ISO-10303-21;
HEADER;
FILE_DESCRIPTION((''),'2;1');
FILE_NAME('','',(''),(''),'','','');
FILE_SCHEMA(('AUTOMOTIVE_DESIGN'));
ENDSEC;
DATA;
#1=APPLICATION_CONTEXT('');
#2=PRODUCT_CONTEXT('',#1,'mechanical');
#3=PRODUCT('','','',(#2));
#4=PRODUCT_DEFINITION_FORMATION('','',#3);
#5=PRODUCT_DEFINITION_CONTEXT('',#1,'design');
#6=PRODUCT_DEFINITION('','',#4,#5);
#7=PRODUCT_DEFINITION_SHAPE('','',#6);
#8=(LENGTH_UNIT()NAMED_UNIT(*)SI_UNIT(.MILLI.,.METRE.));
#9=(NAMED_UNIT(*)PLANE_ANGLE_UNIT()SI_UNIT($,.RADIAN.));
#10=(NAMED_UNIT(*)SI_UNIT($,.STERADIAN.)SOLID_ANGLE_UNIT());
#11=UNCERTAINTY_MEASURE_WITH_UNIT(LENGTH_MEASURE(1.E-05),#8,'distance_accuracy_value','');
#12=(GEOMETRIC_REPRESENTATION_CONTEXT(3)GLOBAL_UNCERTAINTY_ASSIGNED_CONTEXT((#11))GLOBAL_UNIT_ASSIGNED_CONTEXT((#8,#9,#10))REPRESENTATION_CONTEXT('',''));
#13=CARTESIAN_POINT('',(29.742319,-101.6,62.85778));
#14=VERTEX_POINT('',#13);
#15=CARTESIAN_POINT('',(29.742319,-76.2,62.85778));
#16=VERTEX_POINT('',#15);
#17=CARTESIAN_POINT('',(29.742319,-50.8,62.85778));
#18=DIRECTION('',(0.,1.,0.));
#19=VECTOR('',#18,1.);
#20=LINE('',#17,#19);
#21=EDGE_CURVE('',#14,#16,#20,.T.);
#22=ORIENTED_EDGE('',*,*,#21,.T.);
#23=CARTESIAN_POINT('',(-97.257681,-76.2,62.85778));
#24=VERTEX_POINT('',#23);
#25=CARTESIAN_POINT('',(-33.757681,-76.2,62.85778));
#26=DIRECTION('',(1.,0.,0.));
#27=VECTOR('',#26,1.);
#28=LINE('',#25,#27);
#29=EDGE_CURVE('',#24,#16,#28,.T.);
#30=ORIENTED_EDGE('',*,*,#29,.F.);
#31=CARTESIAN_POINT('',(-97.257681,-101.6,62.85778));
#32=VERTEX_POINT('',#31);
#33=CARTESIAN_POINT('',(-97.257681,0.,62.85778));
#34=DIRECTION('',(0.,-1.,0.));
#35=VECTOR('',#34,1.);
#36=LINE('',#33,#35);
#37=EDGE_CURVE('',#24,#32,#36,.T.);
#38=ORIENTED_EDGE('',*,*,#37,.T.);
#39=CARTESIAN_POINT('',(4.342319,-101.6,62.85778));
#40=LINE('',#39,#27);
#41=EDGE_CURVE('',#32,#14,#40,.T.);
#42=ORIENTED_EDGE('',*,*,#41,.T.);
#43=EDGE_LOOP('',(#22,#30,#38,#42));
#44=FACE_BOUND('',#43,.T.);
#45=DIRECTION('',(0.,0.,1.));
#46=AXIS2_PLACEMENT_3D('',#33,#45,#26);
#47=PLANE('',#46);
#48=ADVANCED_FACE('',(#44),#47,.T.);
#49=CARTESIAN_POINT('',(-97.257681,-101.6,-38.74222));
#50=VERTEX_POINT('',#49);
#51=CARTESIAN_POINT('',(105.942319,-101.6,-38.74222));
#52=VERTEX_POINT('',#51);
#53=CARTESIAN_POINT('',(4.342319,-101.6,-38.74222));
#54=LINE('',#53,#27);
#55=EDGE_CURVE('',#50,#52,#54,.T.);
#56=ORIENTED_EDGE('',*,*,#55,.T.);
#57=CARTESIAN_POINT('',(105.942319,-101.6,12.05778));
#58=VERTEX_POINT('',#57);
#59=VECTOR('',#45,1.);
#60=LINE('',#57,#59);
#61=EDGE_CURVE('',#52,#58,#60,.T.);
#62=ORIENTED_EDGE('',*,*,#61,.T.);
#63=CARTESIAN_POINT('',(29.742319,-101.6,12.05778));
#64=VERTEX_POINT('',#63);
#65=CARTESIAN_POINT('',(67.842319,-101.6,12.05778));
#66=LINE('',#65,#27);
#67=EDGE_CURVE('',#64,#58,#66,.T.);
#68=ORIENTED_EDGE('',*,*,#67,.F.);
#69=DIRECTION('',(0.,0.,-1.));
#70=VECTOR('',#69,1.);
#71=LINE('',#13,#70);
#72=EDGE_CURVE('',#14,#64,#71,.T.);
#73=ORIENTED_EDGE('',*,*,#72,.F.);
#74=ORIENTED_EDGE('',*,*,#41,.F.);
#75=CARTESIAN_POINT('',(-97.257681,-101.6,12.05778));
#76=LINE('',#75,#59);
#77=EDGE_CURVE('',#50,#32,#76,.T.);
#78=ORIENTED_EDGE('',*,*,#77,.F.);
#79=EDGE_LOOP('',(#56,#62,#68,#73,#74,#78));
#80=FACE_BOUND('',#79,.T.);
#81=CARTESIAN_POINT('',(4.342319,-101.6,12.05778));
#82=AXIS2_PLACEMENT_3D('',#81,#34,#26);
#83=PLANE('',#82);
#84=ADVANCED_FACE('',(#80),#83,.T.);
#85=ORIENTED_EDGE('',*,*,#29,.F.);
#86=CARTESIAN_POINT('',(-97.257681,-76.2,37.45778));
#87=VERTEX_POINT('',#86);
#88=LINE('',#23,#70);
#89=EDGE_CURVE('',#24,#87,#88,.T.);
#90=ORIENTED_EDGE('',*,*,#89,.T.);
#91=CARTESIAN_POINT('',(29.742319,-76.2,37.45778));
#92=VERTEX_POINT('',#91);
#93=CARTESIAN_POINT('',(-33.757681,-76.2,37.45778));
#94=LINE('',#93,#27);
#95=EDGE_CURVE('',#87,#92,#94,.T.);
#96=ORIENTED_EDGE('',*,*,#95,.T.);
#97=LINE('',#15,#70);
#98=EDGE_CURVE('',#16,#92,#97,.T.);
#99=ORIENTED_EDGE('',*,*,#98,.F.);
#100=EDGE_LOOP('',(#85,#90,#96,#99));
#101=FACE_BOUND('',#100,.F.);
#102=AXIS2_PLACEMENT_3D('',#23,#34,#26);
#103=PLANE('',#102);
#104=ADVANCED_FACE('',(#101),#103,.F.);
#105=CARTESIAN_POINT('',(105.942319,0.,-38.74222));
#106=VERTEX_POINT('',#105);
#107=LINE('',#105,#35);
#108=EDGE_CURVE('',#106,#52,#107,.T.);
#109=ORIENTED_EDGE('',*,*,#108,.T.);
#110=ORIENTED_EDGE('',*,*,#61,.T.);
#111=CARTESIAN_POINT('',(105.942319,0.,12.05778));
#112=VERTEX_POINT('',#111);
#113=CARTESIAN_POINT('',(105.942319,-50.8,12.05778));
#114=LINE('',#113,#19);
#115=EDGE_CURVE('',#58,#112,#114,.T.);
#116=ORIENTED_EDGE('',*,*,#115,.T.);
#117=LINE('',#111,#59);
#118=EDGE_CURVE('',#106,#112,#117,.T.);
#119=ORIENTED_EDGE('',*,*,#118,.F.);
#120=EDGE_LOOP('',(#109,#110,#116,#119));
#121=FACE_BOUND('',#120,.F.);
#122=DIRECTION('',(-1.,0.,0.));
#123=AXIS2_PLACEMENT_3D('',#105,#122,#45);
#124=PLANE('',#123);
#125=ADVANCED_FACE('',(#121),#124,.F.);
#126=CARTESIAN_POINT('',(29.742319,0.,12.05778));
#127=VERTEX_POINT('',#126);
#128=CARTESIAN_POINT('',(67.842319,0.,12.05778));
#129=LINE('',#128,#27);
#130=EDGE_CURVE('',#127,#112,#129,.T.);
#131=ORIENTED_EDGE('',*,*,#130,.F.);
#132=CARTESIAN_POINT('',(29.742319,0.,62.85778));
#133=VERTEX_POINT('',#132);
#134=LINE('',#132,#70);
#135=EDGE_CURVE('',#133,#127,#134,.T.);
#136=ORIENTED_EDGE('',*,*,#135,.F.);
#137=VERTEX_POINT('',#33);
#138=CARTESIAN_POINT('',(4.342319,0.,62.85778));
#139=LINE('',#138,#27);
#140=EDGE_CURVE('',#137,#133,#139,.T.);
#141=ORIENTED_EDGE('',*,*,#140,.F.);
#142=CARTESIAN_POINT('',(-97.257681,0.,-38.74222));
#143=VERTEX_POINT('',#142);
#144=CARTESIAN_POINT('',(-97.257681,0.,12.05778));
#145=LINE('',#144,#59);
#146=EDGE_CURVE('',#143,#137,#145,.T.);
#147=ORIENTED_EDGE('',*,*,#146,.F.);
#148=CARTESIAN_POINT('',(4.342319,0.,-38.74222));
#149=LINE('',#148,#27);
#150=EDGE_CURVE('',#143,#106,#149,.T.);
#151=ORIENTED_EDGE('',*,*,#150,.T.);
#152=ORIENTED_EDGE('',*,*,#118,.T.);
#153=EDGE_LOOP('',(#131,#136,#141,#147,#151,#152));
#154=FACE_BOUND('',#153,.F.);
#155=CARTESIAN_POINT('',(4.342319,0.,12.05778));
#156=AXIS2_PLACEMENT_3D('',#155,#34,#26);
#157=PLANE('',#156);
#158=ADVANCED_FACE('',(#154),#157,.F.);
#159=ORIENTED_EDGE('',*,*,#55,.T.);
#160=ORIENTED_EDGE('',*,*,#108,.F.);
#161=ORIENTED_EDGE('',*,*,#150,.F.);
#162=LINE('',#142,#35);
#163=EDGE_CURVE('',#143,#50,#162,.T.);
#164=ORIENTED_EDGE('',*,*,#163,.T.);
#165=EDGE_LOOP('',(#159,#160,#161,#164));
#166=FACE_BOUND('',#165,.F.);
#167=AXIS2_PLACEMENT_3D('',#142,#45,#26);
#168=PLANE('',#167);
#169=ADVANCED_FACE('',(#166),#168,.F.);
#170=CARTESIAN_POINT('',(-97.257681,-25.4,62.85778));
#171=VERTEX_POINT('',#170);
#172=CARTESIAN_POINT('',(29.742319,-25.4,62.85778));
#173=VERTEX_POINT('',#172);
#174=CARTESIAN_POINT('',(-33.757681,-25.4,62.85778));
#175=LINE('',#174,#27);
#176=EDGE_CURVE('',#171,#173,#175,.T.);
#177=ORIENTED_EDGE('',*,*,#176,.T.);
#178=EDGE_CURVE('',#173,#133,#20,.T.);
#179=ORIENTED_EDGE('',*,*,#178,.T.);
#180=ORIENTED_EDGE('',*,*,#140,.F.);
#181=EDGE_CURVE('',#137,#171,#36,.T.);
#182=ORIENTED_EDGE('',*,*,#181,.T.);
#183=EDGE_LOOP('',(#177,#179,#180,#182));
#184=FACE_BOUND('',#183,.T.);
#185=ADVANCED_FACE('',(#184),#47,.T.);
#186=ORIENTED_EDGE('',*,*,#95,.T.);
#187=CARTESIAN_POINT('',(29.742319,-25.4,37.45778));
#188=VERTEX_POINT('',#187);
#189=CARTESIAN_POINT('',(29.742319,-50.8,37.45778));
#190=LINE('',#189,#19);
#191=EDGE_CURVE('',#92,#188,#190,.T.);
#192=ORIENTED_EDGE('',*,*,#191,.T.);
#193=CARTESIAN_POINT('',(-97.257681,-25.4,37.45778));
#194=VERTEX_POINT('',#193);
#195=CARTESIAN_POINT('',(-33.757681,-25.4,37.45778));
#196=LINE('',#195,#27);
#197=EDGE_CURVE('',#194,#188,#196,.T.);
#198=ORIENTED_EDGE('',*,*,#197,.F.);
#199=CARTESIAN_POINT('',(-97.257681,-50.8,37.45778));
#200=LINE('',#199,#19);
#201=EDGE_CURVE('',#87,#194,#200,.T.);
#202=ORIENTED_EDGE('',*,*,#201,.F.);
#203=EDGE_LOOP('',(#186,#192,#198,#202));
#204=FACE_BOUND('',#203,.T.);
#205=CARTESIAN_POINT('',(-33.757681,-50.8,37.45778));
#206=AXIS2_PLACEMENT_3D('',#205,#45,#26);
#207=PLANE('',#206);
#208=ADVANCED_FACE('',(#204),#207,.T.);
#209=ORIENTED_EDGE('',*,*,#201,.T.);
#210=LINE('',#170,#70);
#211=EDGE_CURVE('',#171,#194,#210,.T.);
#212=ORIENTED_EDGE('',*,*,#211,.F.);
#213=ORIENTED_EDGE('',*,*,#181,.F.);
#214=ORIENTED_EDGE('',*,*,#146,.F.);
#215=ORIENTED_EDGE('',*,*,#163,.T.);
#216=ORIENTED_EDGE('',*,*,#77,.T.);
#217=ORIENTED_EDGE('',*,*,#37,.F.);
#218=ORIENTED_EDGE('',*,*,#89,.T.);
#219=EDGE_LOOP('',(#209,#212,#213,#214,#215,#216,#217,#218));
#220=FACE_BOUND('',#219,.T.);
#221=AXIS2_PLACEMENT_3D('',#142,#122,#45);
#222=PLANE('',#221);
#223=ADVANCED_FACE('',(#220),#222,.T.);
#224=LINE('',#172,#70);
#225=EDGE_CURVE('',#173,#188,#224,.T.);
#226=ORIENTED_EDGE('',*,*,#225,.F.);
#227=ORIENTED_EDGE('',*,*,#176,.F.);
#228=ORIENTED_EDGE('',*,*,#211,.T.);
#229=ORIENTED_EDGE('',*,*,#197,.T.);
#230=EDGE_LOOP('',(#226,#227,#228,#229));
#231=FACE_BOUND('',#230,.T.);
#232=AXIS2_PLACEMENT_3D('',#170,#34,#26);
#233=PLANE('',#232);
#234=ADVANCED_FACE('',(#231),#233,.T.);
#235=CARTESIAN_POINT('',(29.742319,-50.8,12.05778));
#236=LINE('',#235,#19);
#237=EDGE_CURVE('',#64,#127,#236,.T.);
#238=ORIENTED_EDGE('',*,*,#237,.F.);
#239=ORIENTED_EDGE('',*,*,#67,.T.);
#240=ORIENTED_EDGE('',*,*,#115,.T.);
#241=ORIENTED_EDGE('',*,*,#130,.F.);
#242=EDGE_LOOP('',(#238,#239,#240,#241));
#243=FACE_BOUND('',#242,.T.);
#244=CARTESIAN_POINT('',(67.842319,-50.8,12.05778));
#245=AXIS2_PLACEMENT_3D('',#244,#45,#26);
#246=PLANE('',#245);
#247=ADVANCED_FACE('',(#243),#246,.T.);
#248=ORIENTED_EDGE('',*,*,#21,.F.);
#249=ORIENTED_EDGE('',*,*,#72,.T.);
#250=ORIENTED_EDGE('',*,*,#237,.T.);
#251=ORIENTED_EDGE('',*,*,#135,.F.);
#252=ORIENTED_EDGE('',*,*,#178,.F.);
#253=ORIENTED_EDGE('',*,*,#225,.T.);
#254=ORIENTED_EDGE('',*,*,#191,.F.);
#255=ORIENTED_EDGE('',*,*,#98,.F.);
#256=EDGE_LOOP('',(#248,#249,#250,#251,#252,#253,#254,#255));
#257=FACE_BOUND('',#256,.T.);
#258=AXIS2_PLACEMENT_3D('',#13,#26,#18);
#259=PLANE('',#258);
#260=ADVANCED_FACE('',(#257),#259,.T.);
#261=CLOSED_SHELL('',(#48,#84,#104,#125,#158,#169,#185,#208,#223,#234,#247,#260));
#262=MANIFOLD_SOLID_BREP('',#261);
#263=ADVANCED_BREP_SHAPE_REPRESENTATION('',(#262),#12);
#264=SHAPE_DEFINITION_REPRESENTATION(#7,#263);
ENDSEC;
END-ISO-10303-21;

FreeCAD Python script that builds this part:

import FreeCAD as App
import Part
import Sketcher
from FreeCAD import Vector
Q = App.Units.Quantity


def add_polygon(sketch, points):
    """Adds a closed chain of lines whose ends are joined by coincident constraints."""
    first, n = sketch.GeometryCount, len(points)
    for a, b in zip(points, points[1:] + points[:1]):
        sketch.addGeometry(Part.LineSegment(App.Vector(*a, 0), App.Vector(*b, 0)), False)
    for i in range(n):
        sketch.addConstraint(Sketcher.Constraint("Coincident", first + i, 2, first + (i + 1) % n, 1))

doc = App.newDocument("Part")
body = doc.addObject("PartDesign::Body", "Body")

# Sketch on XZ plane
sketch1 = doc.addObject("Sketcher::SketchObject", "Sketch")
body.addObject(sketch1)
sketch1.AttachmentSupport = (doc.XZ_Plane, [""])
sketch1.MapMode = "FlatFace"
add_polygon(sketch1, [(-97, 63), (-97, -39), (106, -39), (106, 63)])  # lines 0-3
sketch1.addConstraint([
    Sketcher.Constraint("Vertical", 0),
    Sketcher.Constraint("Horizontal", 1),
    Sketcher.Constraint("Vertical", 2),
    Sketcher.Constraint("Horizontal", 3),
    Sketcher.Constraint("DistanceX", 1, 1, 1, 2, Q("8 in")),
    Sketcher.Constraint("DistanceY", 0, 2, 0, 1, Q("4 in")),
    Sketcher.Constraint("DistanceX", 0, 2, -1, 1, 97.257681),
    Sketcher.Constraint("DistanceY", 0, 2, -1, 1, 38.74222),
])
pad1 = doc.addObject("PartDesign::Pad", "Pad")
body.addObject(pad1)
pad1.Profile = sketch1
pad1.Length = Q("4 in")

# Sketch on XY plane
sketch2 = doc.addObject("Sketcher::SketchObject", "Sketch001")
body.addObject(sketch2)
sketch2.AttachmentSupport = (doc.XY_Plane, [""])
sketch2.MapMode = "FlatFace"
sketch2.AttachmentOffset = App.Placement(Vector(0, 0, 62.85778), App.Rotation())
add_polygon(sketch2, [(30, 0), (30, -102), (106, -102), (106, 0)])  # lines 0-3
sketch2.addConstraint([
    Sketcher.Constraint("Vertical", 0),
    Sketcher.Constraint("Horizontal", 1),
    Sketcher.Constraint("Vertical", 2),
    Sketcher.Constraint("Horizontal", 3),
    Sketcher.Constraint("PointOnObject", 2, 2, -1),
    Sketcher.Constraint("DistanceX", 1, 1, 1, 2, Q("3 in")),
    Sketcher.Constraint("DistanceY", 0, 2, 0, 1, Q("4 in")),
    Sketcher.Constraint("DistanceX", -1, 1, 0, 2, 29.742319),
])
pocket1 = doc.addObject("PartDesign::Pocket", "Pocket")
body.addObject(pocket1)
pocket1.Profile = sketch2
pocket1.Length = Q("2 in")

# Sketch on XY plane
sketch3 = doc.addObject("Sketcher::SketchObject", "Sketch002")
body.addObject(sketch3)
sketch3.AttachmentSupport = (doc.XY_Plane, [""])
sketch3.MapMode = "FlatFace"
sketch3.AttachmentOffset = App.Placement(Vector(0, 0, 62.85778), App.Rotation())
add_polygon(sketch3, [(-97, -25), (-97, -76), (30, -76), (30, -25)])  # lines 0-3
sketch3.addConstraint([
    Sketcher.Constraint("Vertical", 0),
    Sketcher.Constraint("Horizontal", 1),
    Sketcher.Constraint("Vertical", 2),
    Sketcher.Constraint("Horizontal", 3),
    Sketcher.Constraint("DistanceX", 1, 1, 1, 2, Q("5 in")),
    Sketcher.Constraint("DistanceY", 0, 2, 0, 1, Q("2 in")),
    Sketcher.Constraint("DistanceY", 0, 2, -1, 1, Q("3 in")),
    Sketcher.Constraint("DistanceX", 0, 2, -1, 1, 97.257681),
])
pocket2 = doc.addObject("PartDesign::Pocket", "Pocket001")
body.addObject(pocket2)
pocket2.Profile = sketch3
pocket2.Length = Q("1 in")

doc.recompute()
